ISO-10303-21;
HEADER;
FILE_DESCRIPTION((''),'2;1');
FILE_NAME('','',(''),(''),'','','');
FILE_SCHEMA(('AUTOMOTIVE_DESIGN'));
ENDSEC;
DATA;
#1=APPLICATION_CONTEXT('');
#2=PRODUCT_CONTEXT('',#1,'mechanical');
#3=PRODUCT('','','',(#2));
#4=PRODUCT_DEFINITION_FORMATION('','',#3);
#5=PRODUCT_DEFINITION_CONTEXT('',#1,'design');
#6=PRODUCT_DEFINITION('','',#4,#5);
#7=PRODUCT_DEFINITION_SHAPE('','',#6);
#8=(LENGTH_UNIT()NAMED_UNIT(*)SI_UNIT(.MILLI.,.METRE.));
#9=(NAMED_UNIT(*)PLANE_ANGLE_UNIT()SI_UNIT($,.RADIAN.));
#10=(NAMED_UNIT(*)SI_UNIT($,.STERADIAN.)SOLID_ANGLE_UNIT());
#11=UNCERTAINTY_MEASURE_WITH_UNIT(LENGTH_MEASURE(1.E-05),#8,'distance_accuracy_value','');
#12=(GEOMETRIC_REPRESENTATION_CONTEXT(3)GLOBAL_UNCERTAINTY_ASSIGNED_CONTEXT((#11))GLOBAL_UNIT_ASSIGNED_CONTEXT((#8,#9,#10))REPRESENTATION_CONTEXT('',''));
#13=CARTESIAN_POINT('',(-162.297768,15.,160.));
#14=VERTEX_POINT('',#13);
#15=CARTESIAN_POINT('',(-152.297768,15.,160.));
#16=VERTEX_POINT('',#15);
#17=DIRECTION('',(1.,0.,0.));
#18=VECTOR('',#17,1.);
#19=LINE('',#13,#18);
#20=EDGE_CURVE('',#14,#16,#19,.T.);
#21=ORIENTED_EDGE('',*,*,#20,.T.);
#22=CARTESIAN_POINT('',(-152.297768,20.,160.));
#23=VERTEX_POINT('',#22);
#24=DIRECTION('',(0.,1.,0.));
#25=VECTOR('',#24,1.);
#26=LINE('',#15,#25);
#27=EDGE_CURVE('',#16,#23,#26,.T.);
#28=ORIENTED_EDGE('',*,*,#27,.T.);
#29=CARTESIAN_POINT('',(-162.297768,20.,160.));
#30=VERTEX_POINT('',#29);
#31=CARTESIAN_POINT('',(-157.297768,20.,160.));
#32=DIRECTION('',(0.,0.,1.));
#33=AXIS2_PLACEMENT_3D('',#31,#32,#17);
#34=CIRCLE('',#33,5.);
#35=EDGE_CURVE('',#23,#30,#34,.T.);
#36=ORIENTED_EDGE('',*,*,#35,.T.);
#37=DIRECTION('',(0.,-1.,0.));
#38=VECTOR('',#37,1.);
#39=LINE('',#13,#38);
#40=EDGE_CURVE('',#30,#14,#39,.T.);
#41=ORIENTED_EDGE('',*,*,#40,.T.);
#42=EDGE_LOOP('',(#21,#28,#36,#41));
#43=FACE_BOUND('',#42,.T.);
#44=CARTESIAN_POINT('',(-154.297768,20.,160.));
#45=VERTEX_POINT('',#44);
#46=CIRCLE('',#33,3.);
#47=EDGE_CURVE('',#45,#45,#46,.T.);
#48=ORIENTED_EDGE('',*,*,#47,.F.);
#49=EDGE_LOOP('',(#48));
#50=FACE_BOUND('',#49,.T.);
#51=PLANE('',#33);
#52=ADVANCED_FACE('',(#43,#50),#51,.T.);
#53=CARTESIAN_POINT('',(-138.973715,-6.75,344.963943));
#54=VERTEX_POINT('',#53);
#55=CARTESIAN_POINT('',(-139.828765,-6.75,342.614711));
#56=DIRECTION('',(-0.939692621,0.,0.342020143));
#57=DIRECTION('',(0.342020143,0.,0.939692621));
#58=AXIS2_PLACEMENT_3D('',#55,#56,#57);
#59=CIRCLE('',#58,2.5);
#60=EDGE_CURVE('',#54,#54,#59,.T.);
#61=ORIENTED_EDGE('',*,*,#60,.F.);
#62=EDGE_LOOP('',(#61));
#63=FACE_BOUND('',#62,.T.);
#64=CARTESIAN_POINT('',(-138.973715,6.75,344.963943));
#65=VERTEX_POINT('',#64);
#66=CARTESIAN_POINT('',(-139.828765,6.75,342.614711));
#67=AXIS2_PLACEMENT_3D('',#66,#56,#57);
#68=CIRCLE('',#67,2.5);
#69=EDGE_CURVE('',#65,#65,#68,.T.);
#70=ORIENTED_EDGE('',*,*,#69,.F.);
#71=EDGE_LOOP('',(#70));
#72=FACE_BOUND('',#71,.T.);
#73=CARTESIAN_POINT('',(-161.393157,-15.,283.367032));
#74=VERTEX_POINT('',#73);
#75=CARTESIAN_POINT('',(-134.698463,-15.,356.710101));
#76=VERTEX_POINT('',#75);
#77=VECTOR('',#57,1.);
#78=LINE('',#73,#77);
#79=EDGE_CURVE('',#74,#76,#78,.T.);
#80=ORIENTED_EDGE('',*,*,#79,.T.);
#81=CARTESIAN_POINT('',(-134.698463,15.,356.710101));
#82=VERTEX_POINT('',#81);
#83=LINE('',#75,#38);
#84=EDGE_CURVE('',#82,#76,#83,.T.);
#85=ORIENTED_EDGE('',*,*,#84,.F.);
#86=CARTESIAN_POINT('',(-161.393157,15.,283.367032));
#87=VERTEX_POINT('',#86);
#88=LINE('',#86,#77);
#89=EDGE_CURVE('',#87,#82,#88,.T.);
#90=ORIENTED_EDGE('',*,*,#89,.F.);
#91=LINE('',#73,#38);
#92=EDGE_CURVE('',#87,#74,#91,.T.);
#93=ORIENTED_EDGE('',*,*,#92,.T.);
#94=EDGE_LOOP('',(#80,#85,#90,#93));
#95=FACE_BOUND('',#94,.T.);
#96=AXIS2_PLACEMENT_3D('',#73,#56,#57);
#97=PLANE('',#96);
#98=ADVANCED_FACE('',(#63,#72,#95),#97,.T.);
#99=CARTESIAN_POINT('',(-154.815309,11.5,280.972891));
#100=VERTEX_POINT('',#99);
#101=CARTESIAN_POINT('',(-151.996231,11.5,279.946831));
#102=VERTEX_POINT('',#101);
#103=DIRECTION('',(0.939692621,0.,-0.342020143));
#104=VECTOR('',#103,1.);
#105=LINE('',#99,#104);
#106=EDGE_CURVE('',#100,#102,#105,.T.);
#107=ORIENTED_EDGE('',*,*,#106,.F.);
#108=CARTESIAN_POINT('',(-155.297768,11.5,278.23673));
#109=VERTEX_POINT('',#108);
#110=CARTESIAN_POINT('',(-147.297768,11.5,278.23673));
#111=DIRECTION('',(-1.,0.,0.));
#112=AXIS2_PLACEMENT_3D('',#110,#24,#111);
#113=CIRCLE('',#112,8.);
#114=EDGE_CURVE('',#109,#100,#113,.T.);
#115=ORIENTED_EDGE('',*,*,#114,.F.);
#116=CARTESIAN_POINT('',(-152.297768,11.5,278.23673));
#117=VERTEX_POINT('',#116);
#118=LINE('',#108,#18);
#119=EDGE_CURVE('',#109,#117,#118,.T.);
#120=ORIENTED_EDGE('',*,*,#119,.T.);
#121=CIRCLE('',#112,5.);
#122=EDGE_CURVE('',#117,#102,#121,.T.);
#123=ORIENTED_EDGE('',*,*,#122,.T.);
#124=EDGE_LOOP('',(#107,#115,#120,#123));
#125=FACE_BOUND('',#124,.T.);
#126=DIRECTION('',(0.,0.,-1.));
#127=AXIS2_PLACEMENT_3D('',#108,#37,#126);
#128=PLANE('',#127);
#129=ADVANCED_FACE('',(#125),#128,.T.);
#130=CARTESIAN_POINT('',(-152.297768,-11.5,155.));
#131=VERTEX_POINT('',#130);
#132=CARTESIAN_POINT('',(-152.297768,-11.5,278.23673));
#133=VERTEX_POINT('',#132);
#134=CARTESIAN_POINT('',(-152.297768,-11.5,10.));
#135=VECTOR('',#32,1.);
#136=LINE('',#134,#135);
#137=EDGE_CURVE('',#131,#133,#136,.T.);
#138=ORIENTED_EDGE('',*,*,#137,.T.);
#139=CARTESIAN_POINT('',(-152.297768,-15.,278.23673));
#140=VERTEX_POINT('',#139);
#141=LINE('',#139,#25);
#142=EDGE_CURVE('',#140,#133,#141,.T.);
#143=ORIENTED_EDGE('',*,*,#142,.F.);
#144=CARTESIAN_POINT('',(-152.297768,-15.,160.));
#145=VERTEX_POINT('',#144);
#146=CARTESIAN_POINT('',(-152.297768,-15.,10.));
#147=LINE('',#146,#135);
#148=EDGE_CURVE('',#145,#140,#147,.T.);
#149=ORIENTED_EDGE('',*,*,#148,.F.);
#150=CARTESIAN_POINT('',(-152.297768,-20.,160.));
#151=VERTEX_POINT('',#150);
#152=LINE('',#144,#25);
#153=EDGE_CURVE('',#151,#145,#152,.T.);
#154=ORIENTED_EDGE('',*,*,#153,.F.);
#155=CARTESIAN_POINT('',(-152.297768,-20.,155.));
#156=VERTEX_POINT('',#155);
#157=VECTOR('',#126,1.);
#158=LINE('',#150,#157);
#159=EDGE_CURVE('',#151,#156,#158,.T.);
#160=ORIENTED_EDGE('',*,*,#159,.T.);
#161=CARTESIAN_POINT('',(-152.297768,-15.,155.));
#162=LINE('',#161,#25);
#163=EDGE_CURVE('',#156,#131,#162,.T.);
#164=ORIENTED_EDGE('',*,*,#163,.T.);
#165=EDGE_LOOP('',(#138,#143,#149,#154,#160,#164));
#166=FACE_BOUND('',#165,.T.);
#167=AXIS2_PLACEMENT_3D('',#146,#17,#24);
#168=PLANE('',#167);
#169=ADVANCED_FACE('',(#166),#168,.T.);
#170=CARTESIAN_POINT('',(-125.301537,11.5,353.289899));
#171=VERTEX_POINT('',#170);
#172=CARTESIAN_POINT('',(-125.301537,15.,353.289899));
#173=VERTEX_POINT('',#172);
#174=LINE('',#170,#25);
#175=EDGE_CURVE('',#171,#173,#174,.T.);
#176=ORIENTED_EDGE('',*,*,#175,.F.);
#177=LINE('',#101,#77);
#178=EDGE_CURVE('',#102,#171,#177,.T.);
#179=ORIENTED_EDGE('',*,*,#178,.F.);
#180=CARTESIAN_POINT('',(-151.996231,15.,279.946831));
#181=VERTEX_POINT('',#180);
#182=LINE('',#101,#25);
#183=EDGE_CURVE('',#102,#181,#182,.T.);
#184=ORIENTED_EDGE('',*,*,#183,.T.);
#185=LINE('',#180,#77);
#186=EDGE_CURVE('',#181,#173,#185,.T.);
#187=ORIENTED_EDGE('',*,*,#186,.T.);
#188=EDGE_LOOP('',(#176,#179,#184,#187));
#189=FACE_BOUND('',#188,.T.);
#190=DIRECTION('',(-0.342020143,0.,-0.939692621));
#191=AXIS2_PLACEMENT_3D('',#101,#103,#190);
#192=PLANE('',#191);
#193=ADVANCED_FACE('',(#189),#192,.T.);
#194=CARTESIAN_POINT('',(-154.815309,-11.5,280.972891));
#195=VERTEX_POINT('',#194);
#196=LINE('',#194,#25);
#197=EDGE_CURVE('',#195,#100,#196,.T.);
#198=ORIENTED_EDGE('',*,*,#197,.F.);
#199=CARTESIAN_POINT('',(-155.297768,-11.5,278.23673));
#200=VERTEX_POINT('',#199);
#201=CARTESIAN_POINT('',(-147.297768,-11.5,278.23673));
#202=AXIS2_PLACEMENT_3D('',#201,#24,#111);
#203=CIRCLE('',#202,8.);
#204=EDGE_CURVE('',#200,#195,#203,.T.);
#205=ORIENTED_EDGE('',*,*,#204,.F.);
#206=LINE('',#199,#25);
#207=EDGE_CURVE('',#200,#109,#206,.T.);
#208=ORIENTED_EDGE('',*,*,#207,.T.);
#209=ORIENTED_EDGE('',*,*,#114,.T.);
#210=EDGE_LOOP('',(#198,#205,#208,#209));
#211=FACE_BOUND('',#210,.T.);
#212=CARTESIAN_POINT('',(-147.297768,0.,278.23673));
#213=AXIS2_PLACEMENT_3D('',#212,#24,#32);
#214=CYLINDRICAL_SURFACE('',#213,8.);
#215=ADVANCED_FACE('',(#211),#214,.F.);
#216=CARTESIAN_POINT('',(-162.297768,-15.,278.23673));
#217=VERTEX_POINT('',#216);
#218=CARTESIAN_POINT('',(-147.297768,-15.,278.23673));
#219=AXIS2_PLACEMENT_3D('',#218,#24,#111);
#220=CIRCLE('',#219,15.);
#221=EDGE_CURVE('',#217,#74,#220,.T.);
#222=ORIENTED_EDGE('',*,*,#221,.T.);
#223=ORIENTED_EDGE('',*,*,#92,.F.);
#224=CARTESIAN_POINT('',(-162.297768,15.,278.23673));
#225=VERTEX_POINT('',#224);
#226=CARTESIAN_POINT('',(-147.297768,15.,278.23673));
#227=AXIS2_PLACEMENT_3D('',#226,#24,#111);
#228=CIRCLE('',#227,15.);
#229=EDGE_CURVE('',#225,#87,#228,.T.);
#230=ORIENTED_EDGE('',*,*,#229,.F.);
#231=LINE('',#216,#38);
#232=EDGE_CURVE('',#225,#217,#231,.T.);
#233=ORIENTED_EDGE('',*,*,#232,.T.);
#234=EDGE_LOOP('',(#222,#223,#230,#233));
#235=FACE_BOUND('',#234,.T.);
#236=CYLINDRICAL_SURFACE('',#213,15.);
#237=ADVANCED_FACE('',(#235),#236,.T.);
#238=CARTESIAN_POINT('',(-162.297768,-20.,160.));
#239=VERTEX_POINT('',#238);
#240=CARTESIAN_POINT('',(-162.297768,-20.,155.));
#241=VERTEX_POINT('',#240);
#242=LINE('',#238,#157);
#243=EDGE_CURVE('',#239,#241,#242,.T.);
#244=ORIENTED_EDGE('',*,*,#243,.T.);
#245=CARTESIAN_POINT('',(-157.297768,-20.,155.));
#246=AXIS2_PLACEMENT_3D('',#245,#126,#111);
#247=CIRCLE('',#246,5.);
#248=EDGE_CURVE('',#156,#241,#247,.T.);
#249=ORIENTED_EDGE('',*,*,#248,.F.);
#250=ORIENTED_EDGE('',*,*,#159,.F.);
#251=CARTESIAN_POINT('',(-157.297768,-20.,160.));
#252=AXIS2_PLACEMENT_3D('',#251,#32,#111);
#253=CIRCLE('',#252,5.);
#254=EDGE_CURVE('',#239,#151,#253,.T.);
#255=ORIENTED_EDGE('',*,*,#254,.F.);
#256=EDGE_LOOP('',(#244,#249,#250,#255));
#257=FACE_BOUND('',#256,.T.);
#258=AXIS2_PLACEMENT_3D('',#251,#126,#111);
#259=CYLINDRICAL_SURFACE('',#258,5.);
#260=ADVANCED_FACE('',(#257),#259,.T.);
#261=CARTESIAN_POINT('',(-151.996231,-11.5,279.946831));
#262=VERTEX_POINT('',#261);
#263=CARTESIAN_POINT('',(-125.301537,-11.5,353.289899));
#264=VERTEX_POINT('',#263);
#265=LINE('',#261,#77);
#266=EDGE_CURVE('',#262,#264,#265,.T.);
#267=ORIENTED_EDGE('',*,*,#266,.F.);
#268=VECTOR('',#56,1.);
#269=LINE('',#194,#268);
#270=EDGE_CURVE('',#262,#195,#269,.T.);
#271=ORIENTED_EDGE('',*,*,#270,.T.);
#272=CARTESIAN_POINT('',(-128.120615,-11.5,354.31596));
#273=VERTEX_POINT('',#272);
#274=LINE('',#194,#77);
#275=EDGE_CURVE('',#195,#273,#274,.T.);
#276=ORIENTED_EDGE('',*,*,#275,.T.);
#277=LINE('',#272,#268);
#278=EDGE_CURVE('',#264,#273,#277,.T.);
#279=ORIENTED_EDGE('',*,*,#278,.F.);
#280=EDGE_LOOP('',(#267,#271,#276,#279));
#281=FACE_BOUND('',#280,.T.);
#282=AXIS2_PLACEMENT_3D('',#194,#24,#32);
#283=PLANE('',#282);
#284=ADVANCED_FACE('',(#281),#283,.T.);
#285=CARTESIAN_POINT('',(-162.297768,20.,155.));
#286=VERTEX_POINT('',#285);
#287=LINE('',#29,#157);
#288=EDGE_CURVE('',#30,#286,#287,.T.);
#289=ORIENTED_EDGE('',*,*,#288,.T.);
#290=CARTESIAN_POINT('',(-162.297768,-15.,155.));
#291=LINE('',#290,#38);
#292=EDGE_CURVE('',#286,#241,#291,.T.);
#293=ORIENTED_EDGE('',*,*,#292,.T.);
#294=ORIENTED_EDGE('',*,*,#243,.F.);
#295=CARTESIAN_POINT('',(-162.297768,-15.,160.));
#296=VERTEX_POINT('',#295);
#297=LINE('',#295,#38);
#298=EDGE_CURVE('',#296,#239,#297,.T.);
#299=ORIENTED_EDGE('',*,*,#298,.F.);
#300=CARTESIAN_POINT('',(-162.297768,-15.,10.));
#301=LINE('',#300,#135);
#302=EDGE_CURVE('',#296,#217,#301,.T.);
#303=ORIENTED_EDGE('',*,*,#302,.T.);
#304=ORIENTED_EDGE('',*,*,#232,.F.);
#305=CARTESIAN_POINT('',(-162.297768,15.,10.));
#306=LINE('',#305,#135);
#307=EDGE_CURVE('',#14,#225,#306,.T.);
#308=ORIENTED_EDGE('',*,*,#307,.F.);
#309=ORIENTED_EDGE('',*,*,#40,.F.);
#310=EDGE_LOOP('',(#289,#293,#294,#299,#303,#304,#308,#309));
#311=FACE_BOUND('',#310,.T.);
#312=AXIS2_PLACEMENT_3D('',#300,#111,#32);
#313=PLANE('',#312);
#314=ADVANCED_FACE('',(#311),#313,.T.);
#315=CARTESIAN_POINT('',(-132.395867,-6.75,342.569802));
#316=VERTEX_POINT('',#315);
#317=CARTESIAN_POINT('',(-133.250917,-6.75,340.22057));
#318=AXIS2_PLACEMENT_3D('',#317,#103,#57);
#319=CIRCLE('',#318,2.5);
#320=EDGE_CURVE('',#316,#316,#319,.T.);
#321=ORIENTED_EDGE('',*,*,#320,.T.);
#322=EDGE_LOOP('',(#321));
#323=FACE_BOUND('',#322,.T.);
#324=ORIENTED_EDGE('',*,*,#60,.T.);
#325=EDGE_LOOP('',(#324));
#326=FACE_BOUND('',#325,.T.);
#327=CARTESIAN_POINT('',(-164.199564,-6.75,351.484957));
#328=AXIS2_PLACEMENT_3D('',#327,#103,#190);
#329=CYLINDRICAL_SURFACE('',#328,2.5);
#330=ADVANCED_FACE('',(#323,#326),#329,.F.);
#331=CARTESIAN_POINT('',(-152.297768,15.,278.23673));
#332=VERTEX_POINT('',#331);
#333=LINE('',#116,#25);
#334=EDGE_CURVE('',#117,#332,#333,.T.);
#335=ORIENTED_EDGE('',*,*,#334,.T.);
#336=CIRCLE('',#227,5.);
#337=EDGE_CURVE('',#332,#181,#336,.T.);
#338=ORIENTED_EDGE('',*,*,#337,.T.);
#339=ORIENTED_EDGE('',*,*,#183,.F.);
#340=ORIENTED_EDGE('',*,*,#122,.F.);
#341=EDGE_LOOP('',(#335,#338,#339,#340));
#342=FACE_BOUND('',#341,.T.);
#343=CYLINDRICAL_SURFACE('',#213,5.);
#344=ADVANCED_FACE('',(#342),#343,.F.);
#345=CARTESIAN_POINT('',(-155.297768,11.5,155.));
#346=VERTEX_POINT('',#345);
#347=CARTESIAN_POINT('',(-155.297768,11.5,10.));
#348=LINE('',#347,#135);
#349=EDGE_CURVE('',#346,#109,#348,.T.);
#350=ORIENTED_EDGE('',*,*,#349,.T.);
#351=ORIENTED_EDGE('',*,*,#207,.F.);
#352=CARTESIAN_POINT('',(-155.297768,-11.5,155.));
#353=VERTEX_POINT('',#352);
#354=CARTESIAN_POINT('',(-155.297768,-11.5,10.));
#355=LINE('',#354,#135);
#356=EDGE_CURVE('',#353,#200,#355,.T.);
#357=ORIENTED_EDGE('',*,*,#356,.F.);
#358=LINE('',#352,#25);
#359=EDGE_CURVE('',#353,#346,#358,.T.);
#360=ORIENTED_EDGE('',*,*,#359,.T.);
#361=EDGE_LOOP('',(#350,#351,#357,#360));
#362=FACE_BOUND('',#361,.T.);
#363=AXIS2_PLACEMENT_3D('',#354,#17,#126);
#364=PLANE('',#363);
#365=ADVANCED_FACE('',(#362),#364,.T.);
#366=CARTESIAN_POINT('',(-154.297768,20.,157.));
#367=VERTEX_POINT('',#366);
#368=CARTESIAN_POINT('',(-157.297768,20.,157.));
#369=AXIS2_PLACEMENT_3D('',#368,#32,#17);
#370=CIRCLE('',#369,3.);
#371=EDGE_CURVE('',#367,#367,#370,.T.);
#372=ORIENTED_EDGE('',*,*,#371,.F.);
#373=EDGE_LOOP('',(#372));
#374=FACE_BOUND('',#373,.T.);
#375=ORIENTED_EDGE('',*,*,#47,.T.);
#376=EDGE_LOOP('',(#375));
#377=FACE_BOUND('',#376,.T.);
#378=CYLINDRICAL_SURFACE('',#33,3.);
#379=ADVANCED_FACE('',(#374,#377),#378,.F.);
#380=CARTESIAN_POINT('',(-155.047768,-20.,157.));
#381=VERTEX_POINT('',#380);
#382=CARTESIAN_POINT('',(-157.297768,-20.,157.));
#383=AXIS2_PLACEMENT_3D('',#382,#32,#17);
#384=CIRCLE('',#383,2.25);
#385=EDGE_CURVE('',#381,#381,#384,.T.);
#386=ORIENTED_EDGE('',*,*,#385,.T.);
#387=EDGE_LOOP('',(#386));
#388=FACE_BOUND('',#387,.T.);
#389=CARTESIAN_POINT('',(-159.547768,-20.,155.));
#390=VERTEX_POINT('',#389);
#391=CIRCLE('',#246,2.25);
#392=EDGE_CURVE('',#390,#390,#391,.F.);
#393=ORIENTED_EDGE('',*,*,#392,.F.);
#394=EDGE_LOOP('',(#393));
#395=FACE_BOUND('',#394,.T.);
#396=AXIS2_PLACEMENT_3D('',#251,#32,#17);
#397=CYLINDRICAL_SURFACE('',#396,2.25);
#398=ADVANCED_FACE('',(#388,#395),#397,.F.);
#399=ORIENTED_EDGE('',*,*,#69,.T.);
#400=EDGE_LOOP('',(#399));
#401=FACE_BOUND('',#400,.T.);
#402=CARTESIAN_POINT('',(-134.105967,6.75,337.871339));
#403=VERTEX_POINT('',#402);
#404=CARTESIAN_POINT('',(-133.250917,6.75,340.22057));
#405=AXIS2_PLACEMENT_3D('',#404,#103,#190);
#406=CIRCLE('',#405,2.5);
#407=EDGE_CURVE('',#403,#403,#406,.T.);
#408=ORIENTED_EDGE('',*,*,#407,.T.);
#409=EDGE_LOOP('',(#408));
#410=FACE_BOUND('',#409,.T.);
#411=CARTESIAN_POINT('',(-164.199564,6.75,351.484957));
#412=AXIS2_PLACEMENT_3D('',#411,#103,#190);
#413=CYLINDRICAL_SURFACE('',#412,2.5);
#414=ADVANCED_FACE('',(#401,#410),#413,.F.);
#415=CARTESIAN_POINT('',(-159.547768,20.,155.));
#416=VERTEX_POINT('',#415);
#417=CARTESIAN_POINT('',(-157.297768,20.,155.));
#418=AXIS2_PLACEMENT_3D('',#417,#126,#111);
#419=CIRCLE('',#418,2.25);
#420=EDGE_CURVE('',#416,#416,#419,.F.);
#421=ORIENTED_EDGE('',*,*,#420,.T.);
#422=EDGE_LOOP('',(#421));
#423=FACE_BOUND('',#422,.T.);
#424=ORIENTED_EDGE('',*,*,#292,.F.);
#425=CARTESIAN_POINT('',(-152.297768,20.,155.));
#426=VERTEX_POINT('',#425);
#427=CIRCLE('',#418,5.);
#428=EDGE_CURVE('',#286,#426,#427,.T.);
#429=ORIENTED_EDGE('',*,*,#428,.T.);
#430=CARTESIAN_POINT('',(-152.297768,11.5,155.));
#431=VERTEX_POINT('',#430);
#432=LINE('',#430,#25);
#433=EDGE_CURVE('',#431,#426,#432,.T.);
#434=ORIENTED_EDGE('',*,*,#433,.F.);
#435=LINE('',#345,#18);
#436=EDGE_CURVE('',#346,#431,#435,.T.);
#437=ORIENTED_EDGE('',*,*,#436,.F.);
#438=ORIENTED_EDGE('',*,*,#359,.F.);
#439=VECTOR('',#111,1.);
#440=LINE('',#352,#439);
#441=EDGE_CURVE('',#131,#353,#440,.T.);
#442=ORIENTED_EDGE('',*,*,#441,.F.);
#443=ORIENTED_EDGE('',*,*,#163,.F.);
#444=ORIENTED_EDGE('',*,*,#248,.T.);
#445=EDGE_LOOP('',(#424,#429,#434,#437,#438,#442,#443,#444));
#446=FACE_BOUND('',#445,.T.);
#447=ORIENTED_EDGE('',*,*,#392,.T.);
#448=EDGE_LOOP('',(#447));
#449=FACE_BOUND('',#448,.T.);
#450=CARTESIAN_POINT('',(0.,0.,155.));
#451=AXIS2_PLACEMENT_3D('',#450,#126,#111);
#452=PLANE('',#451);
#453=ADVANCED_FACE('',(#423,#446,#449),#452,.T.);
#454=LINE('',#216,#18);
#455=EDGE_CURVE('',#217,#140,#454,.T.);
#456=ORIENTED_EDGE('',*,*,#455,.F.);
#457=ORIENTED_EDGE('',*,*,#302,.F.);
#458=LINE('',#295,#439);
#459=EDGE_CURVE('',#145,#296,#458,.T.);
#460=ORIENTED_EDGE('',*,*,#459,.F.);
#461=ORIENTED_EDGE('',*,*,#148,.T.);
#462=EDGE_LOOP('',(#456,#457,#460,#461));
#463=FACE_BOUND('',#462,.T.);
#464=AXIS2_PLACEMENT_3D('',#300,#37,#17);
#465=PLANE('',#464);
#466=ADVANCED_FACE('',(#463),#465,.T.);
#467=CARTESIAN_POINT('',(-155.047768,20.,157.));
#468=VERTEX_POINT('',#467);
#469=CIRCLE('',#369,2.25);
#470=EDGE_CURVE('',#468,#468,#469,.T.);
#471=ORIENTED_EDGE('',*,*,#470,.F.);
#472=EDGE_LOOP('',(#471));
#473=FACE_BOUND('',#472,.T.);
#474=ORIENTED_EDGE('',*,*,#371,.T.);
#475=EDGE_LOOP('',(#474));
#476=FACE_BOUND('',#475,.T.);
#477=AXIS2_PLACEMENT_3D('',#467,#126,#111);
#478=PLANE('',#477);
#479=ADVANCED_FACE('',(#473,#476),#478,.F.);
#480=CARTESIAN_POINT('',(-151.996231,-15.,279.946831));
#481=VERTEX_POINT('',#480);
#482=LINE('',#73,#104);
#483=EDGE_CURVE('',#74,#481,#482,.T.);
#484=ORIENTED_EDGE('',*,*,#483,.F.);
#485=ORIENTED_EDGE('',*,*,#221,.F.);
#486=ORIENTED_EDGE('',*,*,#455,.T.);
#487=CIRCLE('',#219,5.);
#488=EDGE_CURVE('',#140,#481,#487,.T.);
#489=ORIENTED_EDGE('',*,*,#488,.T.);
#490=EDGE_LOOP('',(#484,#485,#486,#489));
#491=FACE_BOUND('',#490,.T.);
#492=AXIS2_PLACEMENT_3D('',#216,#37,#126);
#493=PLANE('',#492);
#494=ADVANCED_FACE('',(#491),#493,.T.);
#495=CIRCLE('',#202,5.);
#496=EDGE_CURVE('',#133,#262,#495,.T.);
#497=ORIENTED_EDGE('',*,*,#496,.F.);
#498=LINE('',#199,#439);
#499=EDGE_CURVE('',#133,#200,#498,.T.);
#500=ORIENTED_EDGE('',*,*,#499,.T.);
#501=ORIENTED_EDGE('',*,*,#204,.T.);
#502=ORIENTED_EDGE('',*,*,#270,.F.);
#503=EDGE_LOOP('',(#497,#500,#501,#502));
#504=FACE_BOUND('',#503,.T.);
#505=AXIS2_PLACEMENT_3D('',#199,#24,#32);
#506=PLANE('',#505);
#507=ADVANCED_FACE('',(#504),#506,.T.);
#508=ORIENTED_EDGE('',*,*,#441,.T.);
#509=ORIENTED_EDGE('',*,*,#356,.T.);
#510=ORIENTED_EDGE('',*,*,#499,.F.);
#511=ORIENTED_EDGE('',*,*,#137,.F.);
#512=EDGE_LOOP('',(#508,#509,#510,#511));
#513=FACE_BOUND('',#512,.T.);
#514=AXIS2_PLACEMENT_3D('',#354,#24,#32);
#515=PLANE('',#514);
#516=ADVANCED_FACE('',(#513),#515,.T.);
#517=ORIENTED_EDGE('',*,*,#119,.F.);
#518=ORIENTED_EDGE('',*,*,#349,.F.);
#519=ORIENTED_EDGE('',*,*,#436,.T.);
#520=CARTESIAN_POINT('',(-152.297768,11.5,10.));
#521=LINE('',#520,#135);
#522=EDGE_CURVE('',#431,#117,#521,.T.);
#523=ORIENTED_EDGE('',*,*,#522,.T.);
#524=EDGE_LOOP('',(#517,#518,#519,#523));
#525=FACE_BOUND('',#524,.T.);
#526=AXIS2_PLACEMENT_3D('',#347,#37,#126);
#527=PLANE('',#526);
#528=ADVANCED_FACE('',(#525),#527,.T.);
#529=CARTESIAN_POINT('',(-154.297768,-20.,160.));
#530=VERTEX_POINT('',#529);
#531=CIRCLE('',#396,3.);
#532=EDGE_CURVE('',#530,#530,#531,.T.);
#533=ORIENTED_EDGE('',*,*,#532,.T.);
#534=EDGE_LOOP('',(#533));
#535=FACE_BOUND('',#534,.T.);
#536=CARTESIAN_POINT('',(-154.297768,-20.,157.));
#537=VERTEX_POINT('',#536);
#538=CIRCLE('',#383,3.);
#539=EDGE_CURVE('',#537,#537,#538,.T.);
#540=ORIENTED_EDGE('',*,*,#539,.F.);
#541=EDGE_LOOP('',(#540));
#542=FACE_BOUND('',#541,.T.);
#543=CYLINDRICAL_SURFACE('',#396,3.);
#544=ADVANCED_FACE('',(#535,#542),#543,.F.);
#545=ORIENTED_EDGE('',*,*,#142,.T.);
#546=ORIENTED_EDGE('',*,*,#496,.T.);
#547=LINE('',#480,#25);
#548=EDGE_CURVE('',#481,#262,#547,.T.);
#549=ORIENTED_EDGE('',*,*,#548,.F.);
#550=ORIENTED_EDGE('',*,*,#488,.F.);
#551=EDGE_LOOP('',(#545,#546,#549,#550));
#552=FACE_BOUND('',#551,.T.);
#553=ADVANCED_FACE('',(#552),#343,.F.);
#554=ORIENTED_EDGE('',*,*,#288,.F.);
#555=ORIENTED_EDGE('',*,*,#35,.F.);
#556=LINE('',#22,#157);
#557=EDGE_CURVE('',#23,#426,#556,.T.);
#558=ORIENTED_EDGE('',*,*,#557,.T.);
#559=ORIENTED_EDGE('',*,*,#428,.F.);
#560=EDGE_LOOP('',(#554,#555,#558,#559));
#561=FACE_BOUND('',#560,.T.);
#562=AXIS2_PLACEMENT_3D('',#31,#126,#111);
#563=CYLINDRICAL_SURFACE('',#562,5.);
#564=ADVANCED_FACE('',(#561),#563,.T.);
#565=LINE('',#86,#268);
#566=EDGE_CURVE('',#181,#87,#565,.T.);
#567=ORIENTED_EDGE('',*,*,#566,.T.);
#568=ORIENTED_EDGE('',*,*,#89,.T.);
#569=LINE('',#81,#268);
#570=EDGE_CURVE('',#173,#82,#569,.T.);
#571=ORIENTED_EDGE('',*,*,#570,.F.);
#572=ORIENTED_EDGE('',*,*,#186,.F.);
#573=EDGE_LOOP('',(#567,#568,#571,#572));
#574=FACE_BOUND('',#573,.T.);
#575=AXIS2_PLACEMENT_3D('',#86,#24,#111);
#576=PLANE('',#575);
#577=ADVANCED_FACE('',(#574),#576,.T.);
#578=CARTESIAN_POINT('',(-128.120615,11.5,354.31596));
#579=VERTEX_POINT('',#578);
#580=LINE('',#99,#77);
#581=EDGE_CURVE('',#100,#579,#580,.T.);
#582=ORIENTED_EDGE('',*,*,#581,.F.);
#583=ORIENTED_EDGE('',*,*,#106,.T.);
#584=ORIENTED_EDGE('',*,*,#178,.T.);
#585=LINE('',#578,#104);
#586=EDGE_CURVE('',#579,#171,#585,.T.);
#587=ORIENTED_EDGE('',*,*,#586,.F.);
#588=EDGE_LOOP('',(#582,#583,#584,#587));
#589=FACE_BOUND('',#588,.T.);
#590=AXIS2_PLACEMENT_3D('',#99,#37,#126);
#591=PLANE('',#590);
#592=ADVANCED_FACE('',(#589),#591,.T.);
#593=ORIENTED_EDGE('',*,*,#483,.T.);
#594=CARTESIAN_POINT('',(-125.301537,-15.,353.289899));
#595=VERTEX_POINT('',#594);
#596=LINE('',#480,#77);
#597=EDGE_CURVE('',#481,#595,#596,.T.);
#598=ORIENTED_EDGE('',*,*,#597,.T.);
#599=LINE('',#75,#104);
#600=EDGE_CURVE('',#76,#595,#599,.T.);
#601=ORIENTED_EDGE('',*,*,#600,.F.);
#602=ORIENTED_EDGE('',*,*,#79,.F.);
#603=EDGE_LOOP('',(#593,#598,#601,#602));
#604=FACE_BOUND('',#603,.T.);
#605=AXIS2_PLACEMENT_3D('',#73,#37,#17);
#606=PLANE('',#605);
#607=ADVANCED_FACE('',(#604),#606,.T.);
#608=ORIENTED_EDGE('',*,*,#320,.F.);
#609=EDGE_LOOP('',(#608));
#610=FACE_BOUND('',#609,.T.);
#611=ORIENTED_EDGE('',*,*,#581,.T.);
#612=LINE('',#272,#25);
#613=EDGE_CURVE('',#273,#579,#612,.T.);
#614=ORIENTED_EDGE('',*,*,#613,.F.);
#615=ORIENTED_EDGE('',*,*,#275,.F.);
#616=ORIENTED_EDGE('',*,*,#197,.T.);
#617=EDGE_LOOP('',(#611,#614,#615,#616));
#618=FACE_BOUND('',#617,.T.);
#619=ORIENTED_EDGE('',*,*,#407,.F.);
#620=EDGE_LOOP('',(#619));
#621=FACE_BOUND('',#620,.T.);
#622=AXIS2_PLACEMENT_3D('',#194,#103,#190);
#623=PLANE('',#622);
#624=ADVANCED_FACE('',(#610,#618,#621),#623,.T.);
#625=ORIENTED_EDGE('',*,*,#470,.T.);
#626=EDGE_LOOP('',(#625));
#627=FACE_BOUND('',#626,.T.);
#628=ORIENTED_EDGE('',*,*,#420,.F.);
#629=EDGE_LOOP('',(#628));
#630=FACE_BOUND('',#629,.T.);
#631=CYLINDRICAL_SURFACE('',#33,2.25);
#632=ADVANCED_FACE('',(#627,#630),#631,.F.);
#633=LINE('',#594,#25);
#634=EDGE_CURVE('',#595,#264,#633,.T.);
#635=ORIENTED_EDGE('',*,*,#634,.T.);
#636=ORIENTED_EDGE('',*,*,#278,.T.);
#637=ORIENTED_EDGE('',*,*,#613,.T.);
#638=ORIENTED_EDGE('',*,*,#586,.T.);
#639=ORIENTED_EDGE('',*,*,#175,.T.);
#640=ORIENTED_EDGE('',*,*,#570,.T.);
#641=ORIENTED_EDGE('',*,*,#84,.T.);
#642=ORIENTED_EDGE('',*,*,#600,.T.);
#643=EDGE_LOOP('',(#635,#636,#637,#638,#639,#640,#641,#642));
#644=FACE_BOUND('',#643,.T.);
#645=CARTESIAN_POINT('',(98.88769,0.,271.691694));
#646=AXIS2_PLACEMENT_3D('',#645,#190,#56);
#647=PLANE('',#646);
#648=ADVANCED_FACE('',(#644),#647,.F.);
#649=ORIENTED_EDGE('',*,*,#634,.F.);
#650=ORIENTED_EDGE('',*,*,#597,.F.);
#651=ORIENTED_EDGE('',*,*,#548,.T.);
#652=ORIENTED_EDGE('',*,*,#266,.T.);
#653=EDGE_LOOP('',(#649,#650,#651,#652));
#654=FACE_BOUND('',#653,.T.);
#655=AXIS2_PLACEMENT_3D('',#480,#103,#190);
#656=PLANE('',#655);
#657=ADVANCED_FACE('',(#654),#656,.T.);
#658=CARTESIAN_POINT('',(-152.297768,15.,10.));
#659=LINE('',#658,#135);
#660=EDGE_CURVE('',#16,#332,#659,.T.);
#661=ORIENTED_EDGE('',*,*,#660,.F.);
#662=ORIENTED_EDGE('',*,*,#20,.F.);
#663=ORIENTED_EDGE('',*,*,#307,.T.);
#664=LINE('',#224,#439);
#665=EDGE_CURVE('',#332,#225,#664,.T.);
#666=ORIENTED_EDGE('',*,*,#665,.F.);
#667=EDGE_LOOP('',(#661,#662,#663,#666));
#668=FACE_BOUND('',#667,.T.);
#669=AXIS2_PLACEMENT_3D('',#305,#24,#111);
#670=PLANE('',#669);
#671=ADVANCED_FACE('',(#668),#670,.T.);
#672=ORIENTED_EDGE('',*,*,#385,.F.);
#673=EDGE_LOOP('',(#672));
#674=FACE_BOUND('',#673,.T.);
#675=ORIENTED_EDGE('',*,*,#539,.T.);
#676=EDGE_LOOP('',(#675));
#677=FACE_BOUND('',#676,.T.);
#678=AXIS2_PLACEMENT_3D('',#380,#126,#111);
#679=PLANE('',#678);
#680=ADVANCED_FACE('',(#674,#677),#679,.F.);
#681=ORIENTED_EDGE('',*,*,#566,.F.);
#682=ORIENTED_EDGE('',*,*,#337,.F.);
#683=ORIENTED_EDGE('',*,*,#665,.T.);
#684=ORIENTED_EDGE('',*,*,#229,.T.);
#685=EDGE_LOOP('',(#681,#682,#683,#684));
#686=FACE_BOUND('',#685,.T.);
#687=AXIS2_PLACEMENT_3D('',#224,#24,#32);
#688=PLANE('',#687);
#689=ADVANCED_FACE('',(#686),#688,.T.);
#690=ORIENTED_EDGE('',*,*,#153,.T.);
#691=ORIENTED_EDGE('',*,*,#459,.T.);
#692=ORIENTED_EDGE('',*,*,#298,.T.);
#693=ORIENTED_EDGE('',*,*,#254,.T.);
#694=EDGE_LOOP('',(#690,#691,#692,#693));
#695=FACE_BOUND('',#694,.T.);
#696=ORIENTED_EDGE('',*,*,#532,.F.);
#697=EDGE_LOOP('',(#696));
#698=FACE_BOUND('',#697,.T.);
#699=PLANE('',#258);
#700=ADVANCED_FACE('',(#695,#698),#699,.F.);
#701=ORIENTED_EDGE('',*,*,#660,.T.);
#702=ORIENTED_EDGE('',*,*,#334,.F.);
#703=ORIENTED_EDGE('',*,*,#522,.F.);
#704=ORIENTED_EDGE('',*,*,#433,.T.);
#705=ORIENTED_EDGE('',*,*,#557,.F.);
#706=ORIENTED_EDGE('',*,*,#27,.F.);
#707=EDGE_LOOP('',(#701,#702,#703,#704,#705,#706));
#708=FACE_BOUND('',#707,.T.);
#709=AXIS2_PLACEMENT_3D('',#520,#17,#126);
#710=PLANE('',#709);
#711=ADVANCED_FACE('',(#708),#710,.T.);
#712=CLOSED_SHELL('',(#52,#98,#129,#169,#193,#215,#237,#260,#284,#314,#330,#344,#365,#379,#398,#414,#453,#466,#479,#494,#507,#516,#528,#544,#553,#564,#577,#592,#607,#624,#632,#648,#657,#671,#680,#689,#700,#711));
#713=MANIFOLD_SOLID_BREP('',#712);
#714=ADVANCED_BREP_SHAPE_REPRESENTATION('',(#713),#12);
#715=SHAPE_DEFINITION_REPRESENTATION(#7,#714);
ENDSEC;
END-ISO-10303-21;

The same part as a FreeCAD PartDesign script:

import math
import FreeCAD as App
import Part
import Sketcher
Q = App.Units.Quantity

doc = App.newDocument("Part")
body = doc.addObject("PartDesign::Body", "Body")

sketch1 = body.newObject("Sketcher::SketchObject", "Sketch")
sketch1.AttachmentSupport = (doc.getObject("XY_Plane"), [""])
sketch1.MapMode = "FlatFace"
sketch1.addGeometry(Part.Circle(App.Vector(0, 0, 0), App.Vector(0, 0, 1), 115), False)
sketch1.addGeometry(Part.Circle(App.Vector(0, 0, 0), App.Vector(0, 0, 1), 105), False)
sketch1.addConstraint(Sketcher.Constraint("Coincident", 0, 3, -1, 1))
sketch1.addConstraint(Sketcher.Constraint("Coincident", 1, 3, -1, 1))
sketch1.addConstraint(Sketcher.Constraint("Diameter", 0, 230.0))
sketch1.addConstraint(Sketcher.Constraint("Diameter", 1, 210.0))
pad1 = body.newObject("PartDesign::Pad", "Pad")
pad1.Profile = sketch1
pad1.Length = 10
pad1.Midplane = True

sketch2 = body.newObject("Sketcher::SketchObject", "Sketch001")
sketch2.Placement = App.Placement(App.Vector(-130, 0, 355), App.Rotation(App.Vector(0.939692621, 0, -0.342020143), App.Vector(0, 1, 0), App.Vector(0.342020143, 0, 0.939692621), "ZXY"))
sketch2.addGeometry(Part.LineSegment(App.Vector(-5, -15, 0), App.Vector(5, -15, 0)), False)
sketch2.addGeometry(Part.LineSegment(App.Vector(5, -15, 0), App.Vector(5, -11.5, 0)), False)
sketch2.addGeometry(Part.LineSegment(App.Vector(5, -11.5, 0), App.Vector(2, -11.5, 0)), False)
sketch2.addGeometry(Part.LineSegment(App.Vector(2, -11.5, 0), App.Vector(2, 11.5, 0)), False)
sketch2.addGeometry(Part.LineSegment(App.Vector(2, 11.5, 0), App.Vector(5, 11.5, 0)), False)
sketch2.addGeometry(Part.LineSegment(App.Vector(5, 11.5, 0), App.Vector(5, 15, 0)), False)
sketch2.addGeometry(Part.LineSegment(App.Vector(5, 15, 0), App.Vector(-5, 15, 0)), False)
sketch2.addGeometry(Part.LineSegment(App.Vector(-5, 15, 0), App.Vector(-5, -15, 0)), False)
sketch2.addConstraint(Sketcher.Constraint("Coincident", 0, 2, 1, 1))
sketch2.addConstraint(Sketcher.Constraint("Coincident", 1, 2, 2, 1))
sketch2.addConstraint(Sketcher.Constraint("Coincident", 2, 2, 3, 1))
sketch2.addConstraint(Sketcher.Constraint("Coincident", 3, 2, 4, 1))
sketch2.addConstraint(Sketcher.Constraint("Coincident", 4, 2, 5, 1))
sketch2.addConstraint(Sketcher.Constraint("Coincident", 5, 2, 6, 1))
sketch2.addConstraint(Sketcher.Constraint("Coincident", 6, 2, 7, 1))
sketch2.addConstraint(Sketcher.Constraint("Coincident", 7, 2, 0, 1))
sketch2.addConstraint(Sketcher.Constraint("Horizontal", 0))
sketch2.addConstraint(Sketcher.Constraint("Vertical", 1))
sketch2.addConstraint(Sketcher.Constraint("Horizontal", 2))
sketch2.addConstraint(Sketcher.Constraint("Vertical", 3))
sketch2.addConstraint(Sketcher.Constraint("Horizontal", 4))
sketch2.addConstraint(Sketcher.Constraint("Vertical", 5))
sketch2.addConstraint(Sketcher.Constraint("Horizontal", 6))
sketch2.addConstraint(Sketcher.Constraint("Vertical", 7))
sketch2.addConstraint(Sketcher.Constraint("Symmetric", 0, 2, 6, 2, -1, 1))
sketch2.addConstraint(Sketcher.Constraint("Symmetric", 1, 2, 4, 2, -1))
sketch2.addConstraint(Sketcher.Constraint("DistanceX", 0, 1, 0, 2, 10.0))
sketch2.addConstraint(Sketcher.Constraint("DistanceX", 2, 2, 2, 1, 3.0))
sketch2.addConstraint(Sketcher.Constraint("DistanceY", 3, 1, 3, 2, 23.0))
sketch2.addConstraint(Sketcher.Constraint("DistanceY", 7, 2, 7, 1, 30.0))

sketch3 = body.newObject("Sketcher::SketchObject", "Sketch002")
sketch3.AttachmentSupport = (doc.getObject("XZ_Plane"), [""])
sketch3.MapMode = "FlatFace"
sketch3.addGeometry(Part.LineSegment(App.Vector(-130, 355, 0), App.Vector(-156.7, 281.7, 0)), False)
sketch3.addGeometry(Part.ArcOfCircle(Part.Circle(App.Vector(-147.3, 278.2, 0), App.Vector(0, 0, 1), 10), math.radians(160), math.radians(180)), False)
sketch3.addGeometry(Part.LineSegment(App.Vector(-157.3, 278.2, 0), App.Vector(-157.3, 10, 0)), False)
sketch3.addGeometry(Part.ArcOfCircle(Part.Circle(App.Vector(-147.3, 10, 0), App.Vector(0, 0, 1), 10), math.radians(180), math.radians(270)), False)
sketch3.addGeometry(Part.LineSegment(App.Vector(-147.3, 0, 0), App.Vector(-106.7, 0, 0)), False)
sketch3.addConstraint(Sketcher.Constraint("Tangent", 0, 2, 1, 1))
sketch3.addConstraint(Sketcher.Constraint("Tangent", 1, 2, 2, 1))
sketch3.addConstraint(Sketcher.Constraint("Tangent", 2, 2, 3, 1))
sketch3.addConstraint(Sketcher.Constraint("Tangent", 3, 2, 4, 1))
sketch3.addConstraint(Sketcher.Constraint("Vertical", 2))
sketch3.addConstraint(Sketcher.Constraint("Horizontal", 4))
sketch3.addConstraint(Sketcher.Constraint("Equal", 1, 3))
sketch3.addConstraint(Sketcher.Constraint("PointOnObject", 3, 2, -1))
sketch3.addConstraint(Sketcher.Constraint("Radius", 1, 10.0))
sketch3.addConstraint(Sketcher.Constraint("Angle", 0, Q("-110 deg")))
sketch3.addConstraint(Sketcher.Constraint("DistanceX", 0, 1, -1, 1, 130.0))
sketch3.addConstraint(Sketcher.Constraint("DistanceY", -1, 1, 0, 1, 355.0))
sketch3.addConstraint(Sketcher.Constraint("DistanceY", 2, 2, 2, 1, 268.23673))
sketch3.addConstraint(Sketcher.Constraint("DistanceX", 4, 1, 4, 2, 40.616465))
doc.recompute()

additivepipe = body.newObject("PartDesign::AdditivePipe", "AdditivePipe")
additivepipe.Profile = sketch2
additivepipe.Spine = (sketch3, ["Edge1", "Edge2", "Edge3", "Edge4", "Edge5"])

sketch4 = body.newObject("Sketcher::SketchObject", "Sketch003")
sketch4.Placement = App.Placement(App.Vector(-227.008304, 0, 82.624266), App.Rotation(App.Vector(-0.342020143, 0, -0.939692621), App.Vector(0, 1, 0), App.Vector(0.939692621, 0, -0.342020143), "ZXY"))
sketch4.addGeometry(Part.Circle(App.Vector(-274.1, 6.8, 0), App.Vector(0, 0, 1), 2.5), False)
sketch4.addGeometry(Part.Circle(App.Vector(-274.1, -6.8, 0), App.Vector(0, 0, 1), 2.5), False)
sketch4.addConstraint(Sketcher.Constraint("Equal", 0, 1))
sketch4.addConstraint(Sketcher.Constraint("Symmetric", 0, 3, 1, 3, -1))
sketch4.addConstraint(Sketcher.Constraint("Diameter", 0, 5.0))
sketch4.addConstraint(Sketcher.Constraint("DistanceY", 1, 3, 0, 3, 13.5))
sketch4.addConstraint(Sketcher.Constraint("DistanceX", 0, 3, -1, 1, 274.128262))
pocket1 = body.newObject("PartDesign::Pocket", "Pocket")
pocket1.Profile = sketch4
pocket1.Type = "ThroughAll"
doc.recompute()

mirrored = body.newObject("PartDesign::Mirrored", "Mirrored")
mirrored.Originals = [additivepipe, pocket1]
mirrored.MirrorPlane = (doc.getObject("YZ_Plane"), [""])
body.Tip = mirrored

sketch5 = body.newObject("Sketcher::SketchObject", "Sketch004")
sketch5.AttachmentSupport = (doc.getObject("YZ_Plane"), [""])
sketch5.MapMode = "FlatFace"
sketch5.addGeometry(Part.ArcOfCircle(Part.Circle(App.Vector(125, 0, 0), App.Vector(0, 0, 1), 5), math.radians(-90), math.radians(90)), False)
sketch5.addGeometry(Part.LineSegment(App.Vector(125, 5, 0), App.Vector(112, 5, 0)), False)
sketch5.addGeometry(Part.LineSegment(App.Vector(112, 5, 0), App.Vector(112, -5, 0)), False)
sketch5.addGeometry(Part.LineSegment(App.Vector(112, -5, 0), App.Vector(125, -5, 0)), False)
sketch5.addConstraint(Sketcher.Constraint("Tangent", 0, 2, 1, 1))
sketch5.addConstraint(Sketcher.Constraint("Coincident", 1, 2, 2, 1))
sketch5.addConstraint(Sketcher.Constraint("Coincident", 2, 2, 3, 1))
sketch5.addConstraint(Sketcher.Constraint("Tangent", 3, 2, 0, 1))
sketch5.addConstraint(Sketcher.Constraint("Horizontal", 1))
sketch5.addConstraint(Sketcher.Constraint("Vertical", 2))
sketch5.addConstraint(Sketcher.Constraint("Horizontal", 3))
sketch5.addConstraint(Sketcher.Constraint("PointOnObject", 0, 3, -1))
sketch5.addConstraint(Sketcher.Constraint("Radius", 0, 5.0))
sketch5.addConstraint(Sketcher.Constraint("DistanceX", -1, 1, 0, 3, 125.0))
sketch5.addConstraint(Sketcher.Constraint("DistanceX", 1, 2, 1, 1, 12.863555))
pad2 = body.newObject("PartDesign::Pad", "Pad001")
pad2.Profile = sketch5
pad2.Length = 10
pad2.Midplane = True
doc.recompute()

mirrored2 = body.newObject("PartDesign::Mirrored", "Mirrored001")
mirrored2.Originals = [pad2]
mirrored2.MirrorPlane = (doc.getObject("XZ_Plane"), [""])
body.Tip = mirrored2

sketch6 = body.newObject("Sketcher::SketchObject", "Sketch005")
sketch6.AttachmentSupport = (doc.getObject("YZ_Plane"), [""])
sketch6.MapMode = "FlatFace"
sketch6.AttachmentOffset = App.Placement(App.Vector(0, 0, 5), App.Rotation())
sketch6.addGeometry(Part.Circle(App.Vector(124.2, 0, 0), App.Vector(0, 0, 1), 2.2), False)
sketch6.addGeometry(Part.Circle(App.Vector(-125, 0, 0), App.Vector(0, 0, 1), 2.2), False)
sketch6.addConstraint(Sketcher.Constraint("Equal", 0, 1))
sketch6.addConstraint(Sketcher.Constraint("PointOnObject", 0, 3, -1))
sketch6.addConstraint(Sketcher.Constraint("PointOnObject", 1, 3, -1))
sketch6.addConstraint(Sketcher.Constraint("Diameter", 0, 4.5))
sketch6.addConstraint(Sketcher.Constraint("DistanceX", 1, 3, -1, 1, 125.0))
sketch6.addConstraint(Sketcher.Constraint("DistanceX", -1, 1, 0, 3, 124.156343))
doc.recompute()
hole = body.newObject("PartDesign::Hole", "Hole")
hole.Profile = sketch6
hole.ThreadType = "None"
hole.Diameter = 4.5
hole.DepthType = "ThroughAll"
hole.HoleCutType = "Counterbore"
hole.HoleCutDiameter = 6
hole.HoleCutDepth = 3

sketch7 = body.newObject("Sketcher::SketchObject", "Sketch006")
sketch7.AttachmentSupport = (doc.getObject("YZ_Plane"), [""])
sketch7.MapMode = "FlatFace"
sketch7.AttachmentOffset = App.Placement(App.Vector(0, 0, -5), App.Rotation())
sketch7.addGeometry(Part.Circle(App.Vector(124.2, 0, 0), App.Vector(0, 0, 1), 2.2), False)
sketch7.addGeometry(Part.Circle(App.Vector(124.2, 0, 0), App.Vector(0, 0, 1), 1.9), False)
sketch7.addGeometry(Part.Circle(App.Vector(-125, 0, 0), App.Vector(0, 0, 1), 2.2), False)
sketch7.addGeometry(Part.Circle(App.Vector(-125, 0, 0), App.Vector(0, 0, 1), 1.9), False)
sketch7.addConstraint(Sketcher.Constraint("Coincident", 1, 3, 0, 3))
sketch7.addConstraint(Sketcher.Constraint("Coincident", 3, 3, 2, 3))
sketch7.addConstraint(Sketcher.Constraint("Equal", 0, 2))
sketch7.addConstraint(Sketcher.Constraint("Equal", 1, 3))
sketch7.addConstraint(Sketcher.Constraint("PointOnObject", 0, 3, -1))
sketch7.addConstraint(Sketcher.Constraint("PointOnObject", 2, 3, -1))
sketch7.addConstraint(Sketcher.Constraint("Diameter", 0, 4.5))
sketch7.addConstraint(Sketcher.Constraint("Diameter", 1, 3.8))
sketch7.addConstraint(Sketcher.Constraint("DistanceX", 2, 3, -1, 1, 125.0))
sketch7.addConstraint(Sketcher.Constraint("DistanceX", -1, 1, 0, 3, 124.156343))
pad3 = body.newObject("PartDesign::Pad", "Pad002")
pad3.Profile = sketch7
pad3.Length = 5

sketch8 = body.newObject("Sketcher::SketchObject", "Sketch007")
sketch8.AttachmentSupport = (doc.getObject("XY_Plane"), [""])
sketch8.MapMode = "FlatFace"
sketch8.AttachmentOffset = App.Placement(App.Vector(0, 0, 155), App.Rotation())
sketch8.addGeometry(Part.LineSegment(App.Vector(-162, 15, 0), App.Vector(-152, 15, 0)), False)
sketch8.addGeometry(Part.LineSegment(App.Vector(-152, 15, 0), App.Vector(-152, 20, 0)), False)
sketch8.addGeometry(Part.ArcOfCircle(Part.Circle(App.Vector(-157, 20, 0), App.Vector(0, 0, 1), 5), math.radians(0), math.radians(180)), False)
sketch8.addGeometry(Part.LineSegment(App.Vector(-162, 20, 0), App.Vector(-162, 15, 0)), False)
sketch8.addGeometry(Part.LineSegment(App.Vector(-152, -20, 0), App.Vector(-152, -15, 0)), False)
sketch8.addGeometry(Part.LineSegment(App.Vector(-152, -15, 0), App.Vector(-162, -15, 0)), False)
sketch8.addGeometry(Part.LineSegment(App.Vector(-162, -15, 0), App.Vector(-162, -20, 0)), False)
sketch8.addGeometry(Part.ArcOfCircle(Part.Circle(App.Vector(-157, -20, 0), App.Vector(0, 0, 1), 5), math.radians(180), math.radians(360)), False)
sketch8.addGeometry(Part.LineSegment(App.Vector(162, -15, 0), App.Vector(152, -15, 0)), False)
sketch8.addGeometry(Part.LineSegment(App.Vector(152, -15, 0), App.Vector(152, -20, 0)), False)
sketch8.addGeometry(Part.ArcOfCircle(Part.Circle(App.Vector(157, -20, 0), App.Vector(0, 0, 1), 5), math.radians(180), math.radians(360)), False)
sketch8.addGeometry(Part.LineSegment(App.Vector(162, -20, 0), App.Vector(162, -15, 0)), False)
sketch8.addGeometry(Part.LineSegment(App.Vector(152, 20, 0), App.Vector(152, 15, 0)), False)
sketch8.addGeometry(Part.LineSegment(App.Vector(152, 15, 0), App.Vector(162, 15, 0)), False)
sketch8.addGeometry(Part.LineSegment(App.Vector(162, 15, 0), App.Vector(162, 20, 0)), False)
sketch8.addGeometry(Part.ArcOfCircle(Part.Circle(App.Vector(157, 20, 0), App.Vector(0, 0, 1), 5), math.radians(0), math.radians(180)), False)
sketch8.addConstraint(Sketcher.Constraint("Coincident", 0, 2, 1, 1))
sketch8.addConstraint(Sketcher.Constraint("Tangent", 1, 2, 2, 1))
sketch8.addConstraint(Sketcher.Constraint("Tangent", 2, 2, 3, 1))
sketch8.addConstraint(Sketcher.Constraint("Coincident", 3, 2, 0, 1))
sketch8.addConstraint(Sketcher.Constraint("Coincident", 4, 2, 5, 1))
sketch8.addConstraint(Sketcher.Constraint("Coincident", 5, 2, 6, 1))
sketch8.addConstraint(Sketcher.Constraint("Tangent", 6, 2, 7, 1))
sketch8.addConstraint(Sketcher.Constraint("Tangent", 7, 2, 4, 1))
sketch8.addConstraint(Sketcher.Constraint("Coincident", 8, 2, 9, 1))
sketch8.addConstraint(Sketcher.Constraint("Tangent", 9, 2, 10, 1))
sketch8.addConstraint(Sketcher.Constraint("Tangent", 10, 2, 11, 1))
sketch8.addConstraint(Sketcher.Constraint("Coincident", 11, 2, 8, 1))
sketch8.addConstraint(Sketcher.Constraint("Coincident", 12, 2, 13, 1))
sketch8.addConstraint(Sketcher.Constraint("Coincident", 13, 2, 14, 1))
sketch8.addConstraint(Sketcher.Constraint("Tangent", 14, 2, 15, 1))
sketch8.addConstraint(Sketcher.Constraint("Tangent", 15, 2, 12, 1))
sketch8.addConstraint(Sketcher.Constraint("Horizontal", 0))
sketch8.addConstraint(Sketcher.Constraint("Vertical", 1))
sketch8.addConstraint(Sketcher.Constraint("Vertical", 3))
sketch8.addConstraint(Sketcher.Constraint("Vertical", 4))
sketch8.addConstraint(Sketcher.Constraint("Horizontal", 5))
sketch8.addConstraint(Sketcher.Constraint("Vertical", 6))
sketch8.addConstraint(Sketcher.Constraint("Horizontal", 8))
sketch8.addConstraint(Sketcher.Constraint("Vertical", 9))
sketch8.addConstraint(Sketcher.Constraint("Vertical", 11))
sketch8.addConstraint(Sketcher.Constraint("Vertical", 12))
sketch8.addConstraint(Sketcher.Constraint("Horizontal", 13))
sketch8.addConstraint(Sketcher.Constraint("Vertical", 14))
sketch8.addConstraint(Sketcher.Constraint("Equal", 2, 7))
sketch8.addConstraint(Sketcher.Constraint("Equal", 7, 10))
sketch8.addConstraint(Sketcher.Constraint("Equal", 10, 15))
sketch8.addConstraint(Sketcher.Constraint("Symmetric", 2, 3, 10, 3, -1, 1))
sketch8.addConstraint(Sketcher.Constraint("Symmetric", 7, 3, 15, 3, -1, 1))
sketch8.addConstraint(Sketcher.Constraint("Symmetric", 7, 3, 10, 3, -2))
sketch8.addConstraint(Sketcher.Constraint("Horizontal", 5, 2, 8, 2))
sketch8.addConstraint(Sketcher.Constraint("Horizontal", 3, 2, 12, 2))
sketch8.addConstraint(Sketcher.Constraint("Equal", 3, 4))
sketch8.addConstraint(Sketcher.Constraint("Radius", 2, 5.0))
sketch8.addConstraint(Sketcher.Constraint("DistanceY", 1, 1, 1, 2, 5.0))
sketch8.addConstraint(Sketcher.Constraint("DistanceY", -1, 1, 2, 3, 20.0))
sketch8.addConstraint(Sketcher.Constraint("DistanceX", 2, 3, -1, 1, 157.297768))
pad4 = body.newObject("PartDesign::Pad", "Pad003")
pad4.Profile = sketch8
pad4.Length = 10
pad4.Midplane = True

sketch9 = body.newObject("Sketcher::SketchObject", "Sketch008")
sketch9.AttachmentSupport = (doc.getObject("XY_Plane"), [""])
sketch9.MapMode = "FlatFace"
sketch9.AttachmentOffset = App.Placement(App.Vector(0, 0, 160), App.Rotation())
sketch9.addGeometry(Part.Circle(App.Vector(-157.3, 20, 0), App.Vector(0, 0, 1), 2.2), False)
sketch9.addGeometry(Part.Circle(App.Vector(-157.3, -20, 0), App.Vector(0, 0, 1), 2.2), False)
sketch9.addGeometry(Part.Circle(App.Vector(157.3, 20, 0), App.Vector(0, 0, 1), 2.2), False)
sketch9.addGeometry(Part.Circle(App.Vector(157.3, -20, 0), App.Vector(0, 0, 1), 2.2), False)
sketch9.addConstraint(Sketcher.Constraint("Equal", 0, 1))
sketch9.addConstraint(Sketcher.Constraint("Equal", 1, 2))
sketch9.addConstraint(Sketcher.Constraint("Equal", 2, 3))
sketch9.addConstraint(Sketcher.Constraint("Symmetric", 1, 3, 2, 3, -1, 1))
sketch9.addConstraint(Sketcher.Constraint("Symmetric", 0, 3, 3, 3, -1, 1))
sketch9.addConstraint(Sketcher.Constraint("Symmetric", 0, 3, 2, 3, -2))
sketch9.addConstraint(Sketcher.Constraint("Diameter", 0, 4.5))
sketch9.addConstraint(Sketcher.Constraint("DistanceY", -1, 1, 0, 3, 20.0))
sketch9.addConstraint(Sketcher.Constraint("DistanceX", 0, 3, -1, 1, 157.297768))
doc.recompute()
hole2 = body.newObject("PartDesign::Hole", "Hole001")
hole2.Profile = sketch9
hole2.ThreadType = "None"
hole2.Diameter = 4.5
hole2.DepthType = "ThroughAll"
hole2.HoleCutType = "Counterbore"
hole2.HoleCutDiameter = 6
hole2.HoleCutDepth = 3

sketch10 = body.newObject("Sketcher::SketchObject", "Sketch009")
sketch10.AttachmentSupport = (doc.getObject("XY_Plane"), [""])
sketch10.MapMode = "FlatFace"
sketch10.AttachmentOffset = App.Placement(App.Vector(0, 0, 150), App.Rotation())
sketch10.addGeometry(Part.Circle(App.Vector(157.3, 20, 0), App.Vector(0, 0, 1), 2.2), False)
sketch10.addGeometry(Part.Circle(App.Vector(157.3, 20, 0), App.Vector(0, 0, 1), 1.9), False)
sketch10.addGeometry(Part.Circle(App.Vector(157.3, -20, 0), App.Vector(0, 0, 1), 2.2), False)
sketch10.addGeometry(Part.Circle(App.Vector(157.3, -20, 0), App.Vector(0, 0, 1), 1.9), False)
sketch10.addGeometry(Part.Circle(App.Vector(-157.3, -20, 0), App.Vector(0, 0, 1), 2.2), False)
sketch10.addGeometry(Part.Circle(App.Vector(-157.3, -20, 0), App.Vector(0, 0, 1), 1.9), False)
sketch10.addGeometry(Part.Circle(App.Vector(-157.3, 20, 0), App.Vector(0, 0, 1), 2.2), False)
sketch10.addGeometry(Part.Circle(App.Vector(-157.3, 20, 0), App.Vector(0, 0, 1), 1.9), False)
sketch10.addConstraint(Sketcher.Constraint("Coincident", 1, 3, 0, 3))
sketch10.addConstraint(Sketcher.Constraint("Coincident", 3, 3, 2, 3))
sketch10.addConstraint(Sketcher.Constraint("Coincident", 5, 3, 4, 3))
sketch10.addConstraint(Sketcher.Constraint("Coincident", 7, 3, 6, 3))
sketch10.addConstraint(Sketcher.Constraint("Equal", 0, 2))
sketch10.addConstraint(Sketcher.Constraint("Equal", 1, 3))
sketch10.addConstraint(Sketcher.Constraint("Equal", 2, 4))
sketch10.addConstraint(Sketcher.Constraint("Equal", 3, 5))
sketch10.addConstraint(Sketcher.Constraint("Equal", 4, 6))
sketch10.addConstraint(Sketcher.Constraint("Equal", 5, 7))
sketch10.addConstraint(Sketcher.Constraint("Symmetric", 0, 3, 4, 3, -1, 1))
sketch10.addConstraint(Sketcher.Constraint("Symmetric", 2, 3, 6, 3, -1, 1))
sketch10.addConstraint(Sketcher.Constraint("Symmetric", 2, 3, 4, 3, -2))
sketch10.addConstraint(Sketcher.Constraint("Diameter", 0, 4.5))
sketch10.addConstraint(Sketcher.Constraint("Diameter", 1, 3.8))
sketch10.addConstraint(Sketcher.Constraint("DistanceY", -1, 1, 0, 3, 20.0))
sketch10.addConstraint(Sketcher.Constraint("DistanceX", -1, 1, 0, 3, 157.297768))
pad5 = body.newObject("PartDesign::Pad", "Pad004")
pad5.Profile = sketch10
pad5.Length = 5

sketch11 = body.newObject("Sketcher::SketchObject", "Sketch010")
sketch11.AttachmentSupport = (doc.getObject("YZ_Plane"), [""])
sketch11.MapMode = "FlatFace"
sketch11.addGeometry(Part.LineSegment(App.Vector(200, 434, 0), App.Vector(-262, 434, 0)), False)
sketch11.addGeometry(Part.LineSegment(App.Vector(-262, 434, 0), App.Vector(-262, -128, 0)), False)
sketch11.addGeometry(Part.LineSegment(App.Vector(-262, -128, 0), App.Vector(200, -128, 0)), False)
sketch11.addGeometry(Part.LineSegment(App.Vector(200, -128, 0), App.Vector(200, 434, 0)), False)
sketch11.addConstraint(Sketcher.Constraint("Coincident", 0, 2, 1, 1))
sketch11.addConstraint(Sketcher.Constraint("Coincident", 1, 2, 2, 1))
sketch11.addConstraint(Sketcher.Constraint("Coincident", 2, 2, 3, 1))
sketch11.addConstraint(Sketcher.Constraint("Coincident", 3, 2, 0, 1))
sketch11.addConstraint(Sketcher.Constraint("Horizontal", 0))
sketch11.addConstraint(Sketcher.Constraint("Vertical", 1))
sketch11.addConstraint(Sketcher.Constraint("Horizontal", 2))
sketch11.addConstraint(Sketcher.Constraint("Vertical", 3))
sketch11.addConstraint(Sketcher.Constraint("DistanceY", 1, 2, 1, 1, 562.038591))
sketch11.addConstraint(Sketcher.Constraint("DistanceX", 0, 2, 0, 1, 462.091775))
sketch11.addConstraint(Sketcher.Constraint("DistanceX", 0, 2, -1, 1, 262.198142))
sketch11.addConstraint(Sketcher.Constraint("DistanceY", -1, 1, 0, 2, 434.15916))
pocket2 = body.newObject("PartDesign::Pocket", "Pocket001")
pocket2.Profile = sketch11
pocket2.Type = "ThroughAll"
pocket2.Reversed = True

sketch12 = body.newObject("Sketcher::SketchObject", "Sketch011")
sketch12.AttachmentSupport = (doc.getObject("XY_Plane"), [""])
sketch12.MapMode = "FlatFace"
sketch12.AttachmentOffset = App.Placement(App.Vector(0, 0, 155), App.Rotation())
sketch12.addGeometry(Part.LineSegment(App.Vector(-319, 188, 0), App.Vector(-319, -188, 0)), False)
sketch12.addGeometry(Part.LineSegment(App.Vector(-319, -188, 0), App.Vector(319, -188, 0)), False)
sketch12.addGeometry(Part.LineSegment(App.Vector(319, -188, 0), App.Vector(319, 188, 0)), False)
sketch12.addGeometry(Part.LineSegment(App.Vector(319, 188, 0), App.Vector(-319, 188, 0)), False)
sketch12.addConstraint(Sketcher.Constraint("Coincident", 0, 2, 1, 1))
sketch12.addConstraint(Sketcher.Constraint("Coincident", 1, 2, 2, 1))
sketch12.addConstraint(Sketcher.Constraint("Coincident", 2, 2, 3, 1))
sketch12.addConstraint(Sketcher.Constraint("Coincident", 3, 2, 0, 1))
sketch12.addConstraint(Sketcher.Constraint("Vertical", 0))
sketch12.addConstraint(Sketcher.Constraint("Horizontal", 1))
sketch12.addConstraint(Sketcher.Constraint("Vertical", 2))
sketch12.addConstraint(Sketcher.Constraint("Horizontal", 3))
sketch12.addConstraint(Sketcher.Constraint("Symmetric", 0, 2, 2, 2, -1, 1))
sketch12.addConstraint(Sketcher.Constraint("DistanceX", 1, 1, 1, 2, 637.22324))
sketch12.addConstraint(Sketcher.Constraint("DistanceY", 0, 2, 0, 1, 375.311867))
pocket3 = body.newObject("PartDesign::Pocket", "Pocket002")
pocket3.Profile = sketch12
pocket3.Type = "ThroughAll"

doc.recompute()
